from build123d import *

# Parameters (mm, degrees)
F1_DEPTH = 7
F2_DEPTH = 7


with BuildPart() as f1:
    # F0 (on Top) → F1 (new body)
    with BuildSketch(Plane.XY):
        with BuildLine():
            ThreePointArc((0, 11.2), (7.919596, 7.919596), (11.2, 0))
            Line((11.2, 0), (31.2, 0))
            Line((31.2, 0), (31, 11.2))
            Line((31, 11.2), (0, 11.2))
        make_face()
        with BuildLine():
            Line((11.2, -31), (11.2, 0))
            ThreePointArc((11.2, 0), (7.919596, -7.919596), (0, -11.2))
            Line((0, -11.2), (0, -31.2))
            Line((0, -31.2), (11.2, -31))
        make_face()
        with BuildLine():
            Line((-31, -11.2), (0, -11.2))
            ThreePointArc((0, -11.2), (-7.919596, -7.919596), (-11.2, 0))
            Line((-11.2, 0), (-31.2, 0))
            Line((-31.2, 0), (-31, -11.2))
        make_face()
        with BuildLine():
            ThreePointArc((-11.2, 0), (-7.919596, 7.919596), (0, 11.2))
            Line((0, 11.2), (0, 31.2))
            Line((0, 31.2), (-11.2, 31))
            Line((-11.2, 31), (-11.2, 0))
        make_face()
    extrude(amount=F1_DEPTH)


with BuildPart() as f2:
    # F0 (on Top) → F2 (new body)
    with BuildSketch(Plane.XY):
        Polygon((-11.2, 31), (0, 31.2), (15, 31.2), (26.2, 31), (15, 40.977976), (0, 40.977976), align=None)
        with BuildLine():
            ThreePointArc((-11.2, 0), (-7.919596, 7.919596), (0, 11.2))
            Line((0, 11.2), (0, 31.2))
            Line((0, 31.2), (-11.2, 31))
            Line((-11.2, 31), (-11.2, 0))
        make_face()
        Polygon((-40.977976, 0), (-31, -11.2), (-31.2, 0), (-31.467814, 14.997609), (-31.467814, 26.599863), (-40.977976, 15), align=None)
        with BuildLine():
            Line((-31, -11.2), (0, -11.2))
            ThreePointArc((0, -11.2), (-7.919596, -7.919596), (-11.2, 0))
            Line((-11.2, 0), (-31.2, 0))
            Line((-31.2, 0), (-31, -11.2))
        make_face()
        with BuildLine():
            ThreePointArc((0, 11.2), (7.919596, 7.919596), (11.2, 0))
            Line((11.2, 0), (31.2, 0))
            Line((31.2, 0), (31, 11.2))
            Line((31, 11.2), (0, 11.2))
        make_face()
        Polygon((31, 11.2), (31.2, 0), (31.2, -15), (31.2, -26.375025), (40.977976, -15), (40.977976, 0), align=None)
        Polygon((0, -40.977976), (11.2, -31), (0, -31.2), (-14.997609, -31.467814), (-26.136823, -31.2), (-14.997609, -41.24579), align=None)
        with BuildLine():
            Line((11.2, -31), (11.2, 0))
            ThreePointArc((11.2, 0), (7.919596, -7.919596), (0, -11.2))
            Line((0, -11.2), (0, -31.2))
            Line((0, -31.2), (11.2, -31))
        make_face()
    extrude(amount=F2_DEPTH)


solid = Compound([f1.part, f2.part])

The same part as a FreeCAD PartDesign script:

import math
import FreeCAD as App
import Part
import Sketcher

V = App.Vector

doc = App.newDocument("Part")
body = doc.addObject("PartDesign::Body", "Body")
body.AllowCompound = True

# Sketch on XY plane
sketch1 = doc.addObject("Sketcher::SketchObject", "Sketch")
body.addObject(sketch1)
sketch1.AttachmentSupport = (doc.XY_Plane, [""])
sketch1.MapMode = "FlatFace"
sketch1.addGeometry(Part.ArcOfCircle(Part.Circle(V(0, 0, 0), V(0, 0, 1), 11), math.radians(0), math.radians(90)), False)
sketch1.addGeometry(Part.LineSegment(V(11, 0, 0), V(31, 0, 0)), False)
sketch1.addGeometry(Part.LineSegment(V(31, 0, 0), V(31, 11, 0)), False)
sketch1.addGeometry(Part.LineSegment(V(31, 11, 0), V(0, 11, 0)), False)
sketch1.addGeometry(Part.LineSegment(V(11, -31, 0), V(11, 0, 0)), False)
sketch1.addGeometry(Part.ArcOfCircle(Part.Circle(V(0, 0, 0), V(0, 0, 1), 11), math.radians(-90), math.radians(0)), False)
sketch1.addGeometry(Part.LineSegment(V(0, -11, 0), V(0, -31, 0)), False)
sketch1.addGeometry(Part.LineSegment(V(0, -31, 0), V(11, -31, 0)), False)
sketch1.addGeometry(Part.LineSegment(V(-31, -11, 0), V(0, -11, 0)), False)
sketch1.addGeometry(Part.ArcOfCircle(Part.Circle(V(0, 0, 0), V(0, 0, 1), 11), math.radians(180), math.radians(270)), False)
sketch1.addGeometry(Part.LineSegment(V(-11, 0, 0), V(-31, 0, 0)), False)
sketch1.addGeometry(Part.LineSegment(V(-31, 0, 0), V(-31, -11, 0)), False)
sketch1.addGeometry(Part.ArcOfCircle(Part.Circle(V(0, 0, 0), V(0, 0, 1), 11), math.radians(90), math.radians(180)), False)
sketch1.addGeometry(Part.LineSegment(V(0, 11, 0), V(0, 31, 0)), False)
sketch1.addGeometry(Part.LineSegment(V(0, 31, 0), V(-11, 31, 0)), False)
sketch1.addGeometry(Part.LineSegment(V(-11, 31, 0), V(-11, 0, 0)), False)
sketch1.addConstraint(Sketcher.Constraint("Coincident", 0, 1, 1, 1))
sketch1.addConstraint(Sketcher.Constraint("Coincident", 1, 2, 2, 1))
sketch1.addConstraint(Sketcher.Constraint("Coincident", 2, 2, 3, 1))
sketch1.addConstraint(Sketcher.Constraint("Tangent", 3, 2, 0, 2))
sketch1.addConstraint(Sketcher.Constraint("Tangent", 4, 2, 5, 2))
sketch1.addConstraint(Sketcher.Constraint("Coincident", 5, 1, 6, 1))
sketch1.addConstraint(Sketcher.Constraint("Coincident", 6, 2, 7, 1))
sketch1.addConstraint(Sketcher.Constraint("Coincident", 7, 2, 4, 1))
sketch1.addConstraint(Sketcher.Constraint("Tangent", 8, 2, 9, 2))
sketch1.addConstraint(Sketcher.Constraint("Coincident", 9, 1, 10, 1))
sketch1.addConstraint(Sketcher.Constraint("Coincident", 10, 2, 11, 1))
sketch1.addConstraint(Sketcher.Constraint("Coincident", 11, 2, 8, 1))
sketch1.addConstraint(Sketcher.Constraint("Coincident", 12, 1, 13, 1))
sketch1.addConstraint(Sketcher.Constraint("Coincident", 13, 2, 14, 1))
sketch1.addConstraint(Sketcher.Constraint("Coincident", 14, 2, 15, 1))
sketch1.addConstraint(Sketcher.Constraint("Tangent", 15, 2, 12, 2))
sketch1.addConstraint(Sketcher.Constraint("Horizontal", 1))
sketch1.addConstraint(Sketcher.Constraint("Horizontal", 3))
sketch1.addConstraint(Sketcher.Constraint("Vertical", 4))
sketch1.addConstraint(Sketcher.Constraint("Vertical", 6))
sketch1.addConstraint(Sketcher.Constraint("Horizontal", 8))
sketch1.addConstraint(Sketcher.Constraint("Horizontal", 10))
sketch1.addConstraint(Sketcher.Constraint("Vertical", 13))
sketch1.addConstraint(Sketcher.Constraint("Vertical", 15))
sketch1.addConstraint(Sketcher.Constraint("Coincident", 0, 3, -1, 1))
sketch1.addConstraint(Sketcher.Constraint("Coincident", 5, 3, -1, 1))
sketch1.addConstraint(Sketcher.Constraint("Coincident", 9, 3, -1, 1))
sketch1.addConstraint(Sketcher.Constraint("Coincident", 12, 3, -1, 1))
sketch1.addConstraint(Sketcher.Constraint("Coincident", 4, 2, 0, 1))
sketch1.addConstraint(Sketcher.Constraint("Coincident", 8, 2, 5, 1))
sketch1.addConstraint(Sketcher.Constraint("Coincident", 12, 1, 3, 2))
sketch1.addConstraint(Sketcher.Constraint("Symmetric", 1, 2, 10, 2, -1, 1))
sketch1.addConstraint(Sketcher.Constraint("Perpendicular", 2, 7))
sketch1.addConstraint(Sketcher.Constraint("Perpendicular", 7, 11))
sketch1.addConstraint(Sketcher.Constraint("Perpendicular", 11, 14))
sketch1.addConstraint(Sketcher.Constraint("Equal", 8, 4))
sketch1.addConstraint(Sketcher.Constraint("Equal", 6, 13))
sketch1.addConstraint(Sketcher.Constraint("Radius", 0, 11.2))
sketch1.addConstraint(Sketcher.Constraint("DistanceX", 1, 1, 1, 2, 20.0))
sketch1.addConstraint(Sketcher.Constraint("DistanceX", 3, 2, 3, 1, 31.0))
pad1 = doc.addObject("PartDesign::Pad", "Pad")
body.addObject(pad1)
pad1.Profile = sketch1
pad1.Length = 7
body2 = doc.addObject("PartDesign::Body", "Body001")
body2.AllowCompound = True

# Sketch on XY plane
sketch2 = doc.addObject("Sketcher::SketchObject", "Sketch001")
body2.addObject(sketch2)
sketch2.AttachmentSupport = (doc.getObject("XY_Plane001"), [""])
sketch2.MapMode = "FlatFace"
sketch2.addGeometry(Part.LineSegment(V(0, 31, 0), V(15, 31, 0)), False)
sketch2.addGeometry(Part.LineSegment(V(15, 31, 0), V(26, 31, 0)), False)
sketch2.addGeometry(Part.LineSegment(V(26, 31, 0), V(15, 41, 0)), False)
sketch2.addGeometry(Part.LineSegment(V(15, 41, 0), V(0, 41, 0)), False)
sketch2.addGeometry(Part.LineSegment(V(0, 41, 0), V(-11, 31, 0)), False)
sketch2.addGeometry(Part.LineSegment(V(-11, 31, 0), V(-11, 0, 0)), False)
sketch2.addGeometry(Part.ArcOfCircle(Part.Circle(V(0, 0, 0), V(0, 0, 1), 11), math.radians(90), math.radians(180)), False)
sketch2.addGeometry(Part.LineSegment(V(0, 11, 0), V(0, 31, 0)), False)
sketch2.addGeometry(Part.LineSegment(V(-41, 0, 0), V(-31, -11, 0)), False)
sketch2.addGeometry(Part.LineSegment(V(-31, -11, 0), V(0, -11, 0)), False)
sketch2.addGeometry(Part.ArcOfCircle(Part.Circle(V(0, 0, 0), V(0, 0, 1), 11), math.radians(180), math.radians(270)), False)
sketch2.addGeometry(Part.LineSegment(V(-11, 0, 0), V(-31, 0, 0)), False)
sketch2.addGeometry(Part.LineSegment(V(-31, 0, 0), V(-31, 15, 0)), False)
sketch2.addGeometry(Part.LineSegment(V(-31, 15, 0), V(-31, 27, 0)), False)
sketch2.addGeometry(Part.LineSegment(V(-31, 27, 0), V(-41, 15, 0)), False)
sketch2.addGeometry(Part.LineSegment(V(-41, 15, 0), V(-41, 0, 0)), False)
sketch2.addGeometry(Part.ArcOfCircle(Part.Circle(V(0, 0, 0), V(0, 0, 1), 11), math.radians(0), math.radians(90)), False)
sketch2.addGeometry(Part.LineSegment(V(11, 0, 0), V(31, 0, 0)), False)
sketch2.addGeometry(Part.LineSegment(V(31, 0, 0), V(31, -26, 0)), False)
sketch2.addGeometry(Part.LineSegment(V(31, -26, 0), V(41, -15, 0)), False)
sketch2.addGeometry(Part.LineSegment(V(41, -15, 0), V(41, 0, 0)), False)
sketch2.addGeometry(Part.LineSegment(V(41, 0, 0), V(31, 11, 0)), False)
sketch2.addGeometry(Part.LineSegment(V(31, 11, 0), V(0, 11, 0)), False)
sketch2.addGeometry(Part.LineSegment(V(0, -41, 0), V(11, -31, 0)), False)
sketch2.addGeometry(Part.LineSegment(V(11, -31, 0), V(11, 0, 0)), False)
sketch2.addGeometry(Part.ArcOfCircle(Part.Circle(V(0, 0, 0), V(0, 0, 1), 11), math.radians(-90), math.radians(0)), False)
sketch2.addGeometry(Part.LineSegment(V(0, -11, 0), V(0, -31, 0)), False)
sketch2.addGeometry(Part.LineSegment(V(0, -31, 0), V(-15, -31, 0)), False)
sketch2.addGeometry(Part.LineSegment(V(-15, -31, 0), V(-26, -31, 0)), False)
sketch2.addGeometry(Part.LineSegment(V(-26, -31, 0), V(-15, -41, 0)), False)
sketch2.addGeometry(Part.LineSegment(V(-15, -41, 0), V(0, -41, 0)), False)
sketch2.addConstraint(Sketcher.Constraint("Coincident", 0, 2, 1, 1))
sketch2.addConstraint(Sketcher.Constraint("Coincident", 1, 2, 2, 1))
sketch2.addConstraint(Sketcher.Constraint("Coincident", 2, 2, 3, 1))
sketch2.addConstraint(Sketcher.Constraint("Coincident", 3, 2, 4, 1))
sketch2.addConstraint(Sketcher.Constraint("Coincident", 4, 2, 5, 1))
sketch2.addConstraint(Sketcher.Constraint("Tangent", 5, 2, 6, 2))
sketch2.addConstraint(Sketcher.Constraint("Coincident", 6, 1, 7, 1))
sketch2.addConstraint(Sketcher.Constraint("Coincident", 7, 2, 0, 1))
sketch2.addConstraint(Sketcher.Constraint("Coincident", 8, 2, 9, 1))
sketch2.addConstraint(Sketcher.Constraint("Tangent", 9, 2, 10, 2))
sketch2.addConstraint(Sketcher.Constraint("Coincident", 10, 1, 11, 1))
sketch2.addConstraint(Sketcher.Constraint("Coincident", 11, 2, 12, 1))
sketch2.addConstraint(Sketcher.Constraint("Coincident", 12, 2, 13, 1))
sketch2.addConstraint(Sketcher.Constraint("Coincident", 13, 2, 14, 1))
sketch2.addConstraint(Sketcher.Constraint("Coincident", 14, 2, 15, 1))
sketch2.addConstraint(Sketcher.Constraint("Coincident", 15, 2, 8, 1))
sketch2.addConstraint(Sketcher.Constraint("Coincident", 16, 1, 17, 1))
sketch2.addConstraint(Sketcher.Constraint("Coincident", 17, 2, 18, 1))
sketch2.addConstraint(Sketcher.Constraint("Coincident", 18, 2, 19, 1))
sketch2.addConstraint(Sketcher.Constraint("Coincident", 19, 2, 20, 1))
sketch2.addConstraint(Sketcher.Constraint("Coincident", 20, 2, 21, 1))
sketch2.addConstraint(Sketcher.Constraint("Coincident", 21, 2, 22, 1))
sketch2.addConstraint(Sketcher.Constraint("Tangent", 22, 2, 16, 2))
sketch2.addConstraint(Sketcher.Constraint("Coincident", 23, 2, 24, 1))
sketch2.addConstraint(Sketcher.Constraint("Tangent", 24, 2, 25, 2))
sketch2.addConstraint(Sketcher.Constraint("Coincident", 25, 1, 26, 1))
sketch2.addConstraint(Sketcher.Constraint("Coincident", 26, 2, 27, 1))
sketch2.addConstraint(Sketcher.Constraint("Coincident", 27, 2, 28, 1))
sketch2.addConstraint(Sketcher.Constraint("Coincident", 28, 2, 29, 1))
sketch2.addConstraint(Sketcher.Constraint("Coincident", 29, 2, 30, 1))
sketch2.addConstraint(Sketcher.Constraint("Coincident", 30, 2, 23, 1))
sketch2.addConstraint(Sketcher.Constraint("Horizontal", 0))
sketch2.addConstraint(Sketcher.Constraint("Horizontal", 3))
sketch2.addConstraint(Sketcher.Constraint("Vertical", 5))
sketch2.addConstraint(Sketcher.Constraint("Vertical", 7))
sketch2.addConstraint(Sketcher.Constraint("Horizontal", 9))
sketch2.addConstraint(Sketcher.Constraint("Horizontal", 11))
sketch2.addConstraint(Sketcher.Constraint("Vertical", 13))
sketch2.addConstraint(Sketcher.Constraint("Vertical", 15))
sketch2.addConstraint(Sketcher.Constraint("Horizontal", 17))
sketch2.addConstraint(Sketcher.Constraint("Vertical", 18))
sketch2.addConstraint(Sketcher.Constraint("Vertical", 20))
sketch2.addConstraint(Sketcher.Constraint("Horizontal", 22))
sketch2.addConstraint(Sketcher.Constraint("Vertical", 24))
sketch2.addConstraint(Sketcher.Constraint("Vertical", 26))
sketch2.addConstraint(Sketcher.Constraint("Coincident", 6, 3, -1, 1))
sketch2.addConstraint(Sketcher.Constraint("Coincident", 10, 3, -1, 1))
sketch2.addConstraint(Sketcher.Constraint("Coincident", 16, 3, -1, 1))
sketch2.addConstraint(Sketcher.Constraint("Coincident", 25, 3, -1, 1))
sketch2.addConstraint(Sketcher.Constraint("Coincident", 10, 1, 5, 2))
sketch2.addConstraint(Sketcher.Constraint("Coincident", 22, 2, 6, 1))
sketch2.addConstraint(Sketcher.Constraint("Coincident", 24, 2, 16, 1))
sketch2.addConstraint(Sketcher.Constraint("Symmetric", 14, 2, 19, 2, -1, 1))
sketch2.addConstraint(Sketcher.Constraint("Symmetric", 7, 2, 26, 2, -1, 1))
sketch2.addConstraint(Sketcher.Constraint("Symmetric", 3, 2, 30, 2, -1, 1))
sketch2.addConstraint(Sketcher.Constraint("PointOnObject", 3, 2, -2))
sketch2.addConstraint(Sketcher.Constraint("PointOnObject", 15, 2, -1))
sketch2.addConstraint(Sketcher.Constraint("PointOnObject", 20, 2, -1))
sketch2.addConstraint(Sketcher.Constraint("Perpendicular", 4, 8))
sketch2.addConstraint(Sketcher.Constraint("Parallel", 8, 21))
sketch2.addConstraint(Sketcher.Constraint("Perpendicular", 21, 23))
sketch2.addConstraint(Sketcher.Constraint("Perpendicular", 12, 27))
sketch2.addConstraint(Sketcher.Constraint("Parallel", 27, 30))
sketch2.addConstraint(Sketcher.Constraint("Horizontal", 1, 2, 4, 2))
sketch2.addConstraint(Sketcher.Constraint("Horizontal", 26, 2, 28, 2))
sketch2.addConstraint(Sketcher.Constraint("Vertical", 0, 2, 2, 2))
sketch2.addConstraint(Sketcher.Constraint("Vertical", 27, 2, 29, 2))
sketch2.addConstraint(Sketcher.Constraint("Equal", 11, 17))
sketch2.addConstraint(Sketcher.Constraint("Equal", 22, 5))
sketch2.addConstraint(Sketcher.Constraint("Equal", 17, 7))
sketch2.addConstraint(Sketcher.Constraint("Equal", 3, 15))
sketch2.addConstraint(Sketcher.Constraint("Equal", 2, 4))
sketch2.addConstraint(Sketcher.Constraint("Equal", 8, 12))
sketch2.addConstraint(Sketcher.Constraint("Equal", 12, 14))
sketch2.addConstraint(Sketcher.Constraint("Equal", 14, 19))
sketch2.addConstraint(Sketcher.Constraint("Equal", 23, 27))
sketch2.addConstraint(Sketcher.Constraint("Equal", 27, 29))
sketch2.addConstraint(Sketcher.Constraint("Radius", 6, 11.2))
sketch2.addConstraint(Sketcher.Constraint("DistanceX", 0, 1, 0, 2, 15.0))
sketch2.addConstraint(Sketcher.Constraint("DistanceX", 9, 1, 9, 2, 31.0))
sketch2.addConstraint(Sketcher.Constraint("DistanceX", 11, 2, 11, 1, 20.0))
sketch2.addConstraint(Sketcher.Constraint("Distance", 2, 15.0))
sketch2.addConstraint(Sketcher.Constraint("DistanceY", 13, 1, 13, 2, 11.602254))
pad2 = doc.addObject("PartDesign::Pad", "Pad001")
body2.addObject(pad2)
pad2.Profile = sketch2
pad2.Length = 7

doc.recompute()
